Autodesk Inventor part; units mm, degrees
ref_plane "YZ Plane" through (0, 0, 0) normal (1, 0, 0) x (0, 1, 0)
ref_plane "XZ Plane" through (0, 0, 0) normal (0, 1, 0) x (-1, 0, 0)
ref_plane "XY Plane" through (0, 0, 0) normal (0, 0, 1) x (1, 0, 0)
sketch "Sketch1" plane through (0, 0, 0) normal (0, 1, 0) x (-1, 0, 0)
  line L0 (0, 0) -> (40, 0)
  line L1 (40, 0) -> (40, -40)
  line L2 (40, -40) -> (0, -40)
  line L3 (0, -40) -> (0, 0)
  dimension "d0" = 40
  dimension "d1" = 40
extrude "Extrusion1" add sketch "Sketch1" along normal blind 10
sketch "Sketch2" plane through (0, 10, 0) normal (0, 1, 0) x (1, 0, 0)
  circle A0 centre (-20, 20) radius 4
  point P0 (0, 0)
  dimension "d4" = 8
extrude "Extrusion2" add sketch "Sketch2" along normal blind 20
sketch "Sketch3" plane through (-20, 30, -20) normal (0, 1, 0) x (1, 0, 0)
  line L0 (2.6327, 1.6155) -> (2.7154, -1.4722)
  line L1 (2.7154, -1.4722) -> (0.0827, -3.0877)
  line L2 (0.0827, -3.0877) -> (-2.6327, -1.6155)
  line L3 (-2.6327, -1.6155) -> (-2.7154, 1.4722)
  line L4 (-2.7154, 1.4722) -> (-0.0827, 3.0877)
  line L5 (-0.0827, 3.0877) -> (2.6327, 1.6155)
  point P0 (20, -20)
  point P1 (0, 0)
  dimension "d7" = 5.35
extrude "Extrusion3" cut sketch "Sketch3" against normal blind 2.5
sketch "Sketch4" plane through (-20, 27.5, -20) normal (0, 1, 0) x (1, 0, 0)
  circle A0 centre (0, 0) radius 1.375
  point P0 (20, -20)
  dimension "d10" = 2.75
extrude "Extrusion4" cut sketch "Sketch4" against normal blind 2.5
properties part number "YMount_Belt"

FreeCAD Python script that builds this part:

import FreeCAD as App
import Part
import Sketcher


def add_polygon(sketch, points):
    """Adds a closed chain of lines whose ends are joined by coincident constraints."""
    first, n = sketch.GeometryCount, len(points)
    for a, b in zip(points, points[1:] + points[:1]):
        sketch.addGeometry(Part.LineSegment(App.Vector(*a, 0), App.Vector(*b, 0)), False)
    for i in range(n):
        sketch.addConstraint(Sketcher.Constraint("Coincident", first + i, 2, first + (i + 1) % n, 1))

doc = App.newDocument("Part")
params = doc.addObject("Spreadsheet::Sheet", "Params")
for row, (alias, value) in enumerate([
    ("sketch1_width", "40 mm"),
    ("pad1_length", "10 mm"),
    ("sketch2_diameter", "8 mm"),
    ("pad2_length", "20 mm"),
    ("pocket1_length", "2.5 mm"),
    ("sketch4_diameter", "2.75 mm"),
    ("pocket2_length", "2.5 mm"),
], start=1):
    params.set(f"A{row}", alias)
    params.set(f"B{row}", "=" + value)
    params.setAlias(f"B{row}", alias)

body = doc.addObject("PartDesign::Body", "Body")

sketch1 = body.newObject("Sketcher::SketchObject", "Sketch")
sketch1.AttachmentSupport = (doc.getObject("XZ_Plane"), [""])
sketch1.MapMode = "FlatFace"
add_polygon(sketch1, [(-40, 0), (0, 0), (0, -40), (-40, -40)])
sketch1.addConstraint(Sketcher.Constraint("Horizontal", 0))
sketch1.addConstraint(Sketcher.Constraint("Vertical", 1))
sketch1.addConstraint(Sketcher.Constraint("Horizontal", 2))
sketch1.addConstraint(Sketcher.Constraint("Vertical", 3))
sketch1.addConstraint(Sketcher.Constraint("Coincident", 0, 2, -1, 1))
sketch1.addConstraint(Sketcher.Constraint("Equal", 2, 1))
sketch1.addConstraint(Sketcher.Constraint("DistanceX", 0, 1, 0, 2, 40.0))
sketch1.setExpression("Constraints[10]", "Params.sketch1_width")
pad1 = body.newObject("PartDesign::Pad", "Pad")
pad1.Profile = sketch1
pad1.setExpression("Length", "Params.pad1_length")
pad1.Reversed = True

sketch2 = body.newObject("Sketcher::SketchObject", "Sketch001")
sketch2.AttachmentSupport = (doc.getObject("XZ_Plane"), [""])
sketch2.MapMode = "FlatFace"
sketch2.AttachmentOffset = App.Placement(App.Vector(0, 0, -10), App.Rotation())
sketch2.addGeometry(Part.Circle(App.Vector(-20, -20, 0), App.Vector(0, 0, 1), 4), False)
sketch2.addConstraint(Sketcher.Constraint("Diameter", 0, 8.0))
sketch2.addConstraint(Sketcher.Constraint("DistanceX", 0, 3, -1, 1, 20.0))
sketch2.addConstraint(Sketcher.Constraint("DistanceY", 0, 3, -1, 1, 20.0))
sketch2.setExpression("Constraints[0]", "Params.sketch2_diameter")
pad2 = body.newObject("PartDesign::Pad", "Pad001")
pad2.Profile = sketch2
pad2.setExpression("Length", "Params.pad2_length")
pad2.Reversed = True

sketch3 = body.newObject("Sketcher::SketchObject", "Sketch002")
sketch3.AttachmentSupport = (doc.getObject("XZ_Plane"), [""])
sketch3.MapMode = "FlatFace"
sketch3.AttachmentOffset = App.Placement(App.Vector(0, 0, -30), App.Rotation())
add_polygon(sketch3, [(-17.3, -18.5), (-17.4, -21.6), (-20.1, -23.1), (-22.7, -21.5), (-22.6, -18.4), (-19.9, -16.9)])
sketch3.addConstraint(Sketcher.Constraint("Parallel", 0, 3))
sketch3.addConstraint(Sketcher.Constraint("Parallel", 1, 4))
sketch3.addConstraint(Sketcher.Constraint("Parallel", 2, 5))
sketch3.addConstraint(Sketcher.Constraint("Equal", 0, 1))
sketch3.addConstraint(Sketcher.Constraint("Equal", 1, 2))
sketch3.addConstraint(Sketcher.Constraint("Equal", 2, 3))
sketch3.addConstraint(Sketcher.Constraint("DistanceX", 3, 2, 1, 2, 2.55))
sketch3.addConstraint(Sketcher.Constraint("DistanceY", 2, 2, 4, 2, 4.56))
sketch3.addConstraint(Sketcher.Constraint("DistanceX", 2, 2, 0, 2, 5.348))
sketch3.addConstraint(Sketcher.Constraint("DistanceY", 0, 2, 3, 2, 3.231))
sketch3.addConstraint(Sketcher.Constraint("DistanceX", 0, 2, -1, 1, 17.3673))
sketch3.addConstraint(Sketcher.Constraint("DistanceY", 0, 2, -1, 1, 21.6155))
pocket1 = body.newObject("PartDesign::Pocket", "Pocket")
pocket1.Profile = sketch3
pocket1.setExpression("Length", "Params.pocket1_length")
pocket1.Reversed = True

sketch4 = body.newObject("Sketcher::SketchObject", "Sketch003")
sketch4.AttachmentSupport = (doc.getObject("XZ_Plane"), [""])
sketch4.MapMode = "FlatFace"
sketch4.AttachmentOffset = App.Placement(App.Vector(0, 0, -27.5), App.Rotation())
sketch4.addGeometry(Part.Circle(App.Vector(-20, -20, 0), App.Vector(0, 0, 1), 1.4), False)
sketch4.addConstraint(Sketcher.Constraint("Diameter", 0, 2.75))
sketch4.addConstraint(Sketcher.Constraint("DistanceX", 0, 3, -1, 1, 20.0))
sketch4.addConstraint(Sketcher.Constraint("DistanceY", 0, 3, -1, 1, 20.0))
sketch4.setExpression("Constraints[0]", "Params.sketch4_diameter")
pocket2 = body.newObject("PartDesign::Pocket", "Pocket001")
pocket2.Profile = sketch4
pocket2.setExpression("Length", "Params.pocket2_length")
pocket2.Reversed = True

doc.recompute()
